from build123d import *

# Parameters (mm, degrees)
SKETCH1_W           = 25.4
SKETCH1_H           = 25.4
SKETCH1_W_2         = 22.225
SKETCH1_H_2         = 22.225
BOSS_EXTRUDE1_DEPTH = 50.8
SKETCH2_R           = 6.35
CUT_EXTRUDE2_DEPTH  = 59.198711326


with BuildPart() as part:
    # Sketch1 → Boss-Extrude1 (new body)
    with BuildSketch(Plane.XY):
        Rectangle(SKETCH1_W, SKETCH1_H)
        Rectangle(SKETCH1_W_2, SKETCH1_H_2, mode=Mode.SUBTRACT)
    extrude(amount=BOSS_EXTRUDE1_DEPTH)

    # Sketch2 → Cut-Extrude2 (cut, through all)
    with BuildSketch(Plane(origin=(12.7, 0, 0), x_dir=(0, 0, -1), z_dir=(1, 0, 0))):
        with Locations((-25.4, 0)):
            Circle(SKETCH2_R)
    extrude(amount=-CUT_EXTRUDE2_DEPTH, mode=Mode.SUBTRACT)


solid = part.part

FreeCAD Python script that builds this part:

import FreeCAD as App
import Part
import Sketcher

V = App.Vector
Q = App.Units.Quantity

doc = App.newDocument("Part")
body = doc.addObject("PartDesign::Body", "Body")

sketch1 = doc.addObject("Sketcher::SketchObject", "Sketch")
body.addObject(sketch1)
sketch1.AttachmentSupport = (doc.XY_Plane, [""])
sketch1.MapMode = "FlatFace"
sketch1.addGeometry([
    Part.LineSegment(V(-13, 13, 0), V(-13, -13, 0)),
    Part.LineSegment(V(-13, -13, 0), V(13, -13, 0)),
    Part.LineSegment(V(13, -13, 0), V(13, 13, 0)),
    Part.LineSegment(V(13, 13, 0), V(-13, 13, 0)),
    Part.LineSegment(V(11, -11, 0), V(-11, -11, 0)),
    Part.LineSegment(V(-11, -11, 0), V(-11, 11, 0)),
    Part.LineSegment(V(-11, 11, 0), V(11, 11, 0)),
    Part.LineSegment(V(11, 11, 0), V(11, -11, 0)),
], False)
sketch1.addConstraint([
    Sketcher.Constraint("Coincident", 0, 2, 1, 1),
    Sketcher.Constraint("Coincident", 1, 2, 2, 1),
    Sketcher.Constraint("Coincident", 2, 2, 3, 1),
    Sketcher.Constraint("Coincident", 3, 2, 0, 1),
    Sketcher.Constraint("Coincident", 4, 2, 5, 1),
    Sketcher.Constraint("Coincident", 5, 2, 6, 1),
    Sketcher.Constraint("Coincident", 6, 2, 7, 1),
    Sketcher.Constraint("Coincident", 7, 2, 4, 1),
    Sketcher.Constraint("Vertical", 0),
    Sketcher.Constraint("Horizontal", 1),
    Sketcher.Constraint("Vertical", 2),
    Sketcher.Constraint("Horizontal", 3),
    Sketcher.Constraint("Horizontal", 4),
    Sketcher.Constraint("Vertical", 5),
    Sketcher.Constraint("Horizontal", 6),
    Sketcher.Constraint("Vertical", 7),
    Sketcher.Constraint("Symmetric", 0, 2, 2, 2, -1, 1),
    Sketcher.Constraint("Symmetric", 4, 2, 6, 2, -1, 1),
    Sketcher.Constraint("Equal", 3, 0),
    Sketcher.Constraint("Equal", 6, 5),
    Sketcher.Constraint("DistanceX", 1, 1, 1, 2, Q("1 in")),
    Sketcher.Constraint("DistanceX", 4, 2, 4, 1, Q("0.875 in")),
])
pad1 = doc.addObject("PartDesign::Pad", "Pad")
body.addObject(pad1)
pad1.Profile = sketch1
pad1.Length = Q("2 in")

sketch2 = doc.addObject("Sketcher::SketchObject", "Sketch001")
body.addObject(sketch2)
sketch2.AttachmentSupport = (doc.YZ_Plane, [""])
sketch2.MapMode = "FlatFace"
sketch2.AttachmentOffset = App.Placement(V(0, 0, 0.5 * 25.4), App.Rotation())
sketch2.addGeometry(Part.Circle(V(0, 25, 0), V(0, 0, 1), 6), False)
sketch2.addConstraint([
    Sketcher.Constraint("PointOnObject", 0, 3, -2),
    Sketcher.Constraint("Diameter", 0, Q("0.5 in")),
    Sketcher.Constraint("DistanceY", -1, 1, 0, 3, Q("1 in")),
])
pocket1 = doc.addObject("PartDesign::Pocket", "Pocket")
body.addObject(pocket1)
pocket1.Profile = sketch2
pocket1.Type = "ThroughAll"

doc.recompute()
